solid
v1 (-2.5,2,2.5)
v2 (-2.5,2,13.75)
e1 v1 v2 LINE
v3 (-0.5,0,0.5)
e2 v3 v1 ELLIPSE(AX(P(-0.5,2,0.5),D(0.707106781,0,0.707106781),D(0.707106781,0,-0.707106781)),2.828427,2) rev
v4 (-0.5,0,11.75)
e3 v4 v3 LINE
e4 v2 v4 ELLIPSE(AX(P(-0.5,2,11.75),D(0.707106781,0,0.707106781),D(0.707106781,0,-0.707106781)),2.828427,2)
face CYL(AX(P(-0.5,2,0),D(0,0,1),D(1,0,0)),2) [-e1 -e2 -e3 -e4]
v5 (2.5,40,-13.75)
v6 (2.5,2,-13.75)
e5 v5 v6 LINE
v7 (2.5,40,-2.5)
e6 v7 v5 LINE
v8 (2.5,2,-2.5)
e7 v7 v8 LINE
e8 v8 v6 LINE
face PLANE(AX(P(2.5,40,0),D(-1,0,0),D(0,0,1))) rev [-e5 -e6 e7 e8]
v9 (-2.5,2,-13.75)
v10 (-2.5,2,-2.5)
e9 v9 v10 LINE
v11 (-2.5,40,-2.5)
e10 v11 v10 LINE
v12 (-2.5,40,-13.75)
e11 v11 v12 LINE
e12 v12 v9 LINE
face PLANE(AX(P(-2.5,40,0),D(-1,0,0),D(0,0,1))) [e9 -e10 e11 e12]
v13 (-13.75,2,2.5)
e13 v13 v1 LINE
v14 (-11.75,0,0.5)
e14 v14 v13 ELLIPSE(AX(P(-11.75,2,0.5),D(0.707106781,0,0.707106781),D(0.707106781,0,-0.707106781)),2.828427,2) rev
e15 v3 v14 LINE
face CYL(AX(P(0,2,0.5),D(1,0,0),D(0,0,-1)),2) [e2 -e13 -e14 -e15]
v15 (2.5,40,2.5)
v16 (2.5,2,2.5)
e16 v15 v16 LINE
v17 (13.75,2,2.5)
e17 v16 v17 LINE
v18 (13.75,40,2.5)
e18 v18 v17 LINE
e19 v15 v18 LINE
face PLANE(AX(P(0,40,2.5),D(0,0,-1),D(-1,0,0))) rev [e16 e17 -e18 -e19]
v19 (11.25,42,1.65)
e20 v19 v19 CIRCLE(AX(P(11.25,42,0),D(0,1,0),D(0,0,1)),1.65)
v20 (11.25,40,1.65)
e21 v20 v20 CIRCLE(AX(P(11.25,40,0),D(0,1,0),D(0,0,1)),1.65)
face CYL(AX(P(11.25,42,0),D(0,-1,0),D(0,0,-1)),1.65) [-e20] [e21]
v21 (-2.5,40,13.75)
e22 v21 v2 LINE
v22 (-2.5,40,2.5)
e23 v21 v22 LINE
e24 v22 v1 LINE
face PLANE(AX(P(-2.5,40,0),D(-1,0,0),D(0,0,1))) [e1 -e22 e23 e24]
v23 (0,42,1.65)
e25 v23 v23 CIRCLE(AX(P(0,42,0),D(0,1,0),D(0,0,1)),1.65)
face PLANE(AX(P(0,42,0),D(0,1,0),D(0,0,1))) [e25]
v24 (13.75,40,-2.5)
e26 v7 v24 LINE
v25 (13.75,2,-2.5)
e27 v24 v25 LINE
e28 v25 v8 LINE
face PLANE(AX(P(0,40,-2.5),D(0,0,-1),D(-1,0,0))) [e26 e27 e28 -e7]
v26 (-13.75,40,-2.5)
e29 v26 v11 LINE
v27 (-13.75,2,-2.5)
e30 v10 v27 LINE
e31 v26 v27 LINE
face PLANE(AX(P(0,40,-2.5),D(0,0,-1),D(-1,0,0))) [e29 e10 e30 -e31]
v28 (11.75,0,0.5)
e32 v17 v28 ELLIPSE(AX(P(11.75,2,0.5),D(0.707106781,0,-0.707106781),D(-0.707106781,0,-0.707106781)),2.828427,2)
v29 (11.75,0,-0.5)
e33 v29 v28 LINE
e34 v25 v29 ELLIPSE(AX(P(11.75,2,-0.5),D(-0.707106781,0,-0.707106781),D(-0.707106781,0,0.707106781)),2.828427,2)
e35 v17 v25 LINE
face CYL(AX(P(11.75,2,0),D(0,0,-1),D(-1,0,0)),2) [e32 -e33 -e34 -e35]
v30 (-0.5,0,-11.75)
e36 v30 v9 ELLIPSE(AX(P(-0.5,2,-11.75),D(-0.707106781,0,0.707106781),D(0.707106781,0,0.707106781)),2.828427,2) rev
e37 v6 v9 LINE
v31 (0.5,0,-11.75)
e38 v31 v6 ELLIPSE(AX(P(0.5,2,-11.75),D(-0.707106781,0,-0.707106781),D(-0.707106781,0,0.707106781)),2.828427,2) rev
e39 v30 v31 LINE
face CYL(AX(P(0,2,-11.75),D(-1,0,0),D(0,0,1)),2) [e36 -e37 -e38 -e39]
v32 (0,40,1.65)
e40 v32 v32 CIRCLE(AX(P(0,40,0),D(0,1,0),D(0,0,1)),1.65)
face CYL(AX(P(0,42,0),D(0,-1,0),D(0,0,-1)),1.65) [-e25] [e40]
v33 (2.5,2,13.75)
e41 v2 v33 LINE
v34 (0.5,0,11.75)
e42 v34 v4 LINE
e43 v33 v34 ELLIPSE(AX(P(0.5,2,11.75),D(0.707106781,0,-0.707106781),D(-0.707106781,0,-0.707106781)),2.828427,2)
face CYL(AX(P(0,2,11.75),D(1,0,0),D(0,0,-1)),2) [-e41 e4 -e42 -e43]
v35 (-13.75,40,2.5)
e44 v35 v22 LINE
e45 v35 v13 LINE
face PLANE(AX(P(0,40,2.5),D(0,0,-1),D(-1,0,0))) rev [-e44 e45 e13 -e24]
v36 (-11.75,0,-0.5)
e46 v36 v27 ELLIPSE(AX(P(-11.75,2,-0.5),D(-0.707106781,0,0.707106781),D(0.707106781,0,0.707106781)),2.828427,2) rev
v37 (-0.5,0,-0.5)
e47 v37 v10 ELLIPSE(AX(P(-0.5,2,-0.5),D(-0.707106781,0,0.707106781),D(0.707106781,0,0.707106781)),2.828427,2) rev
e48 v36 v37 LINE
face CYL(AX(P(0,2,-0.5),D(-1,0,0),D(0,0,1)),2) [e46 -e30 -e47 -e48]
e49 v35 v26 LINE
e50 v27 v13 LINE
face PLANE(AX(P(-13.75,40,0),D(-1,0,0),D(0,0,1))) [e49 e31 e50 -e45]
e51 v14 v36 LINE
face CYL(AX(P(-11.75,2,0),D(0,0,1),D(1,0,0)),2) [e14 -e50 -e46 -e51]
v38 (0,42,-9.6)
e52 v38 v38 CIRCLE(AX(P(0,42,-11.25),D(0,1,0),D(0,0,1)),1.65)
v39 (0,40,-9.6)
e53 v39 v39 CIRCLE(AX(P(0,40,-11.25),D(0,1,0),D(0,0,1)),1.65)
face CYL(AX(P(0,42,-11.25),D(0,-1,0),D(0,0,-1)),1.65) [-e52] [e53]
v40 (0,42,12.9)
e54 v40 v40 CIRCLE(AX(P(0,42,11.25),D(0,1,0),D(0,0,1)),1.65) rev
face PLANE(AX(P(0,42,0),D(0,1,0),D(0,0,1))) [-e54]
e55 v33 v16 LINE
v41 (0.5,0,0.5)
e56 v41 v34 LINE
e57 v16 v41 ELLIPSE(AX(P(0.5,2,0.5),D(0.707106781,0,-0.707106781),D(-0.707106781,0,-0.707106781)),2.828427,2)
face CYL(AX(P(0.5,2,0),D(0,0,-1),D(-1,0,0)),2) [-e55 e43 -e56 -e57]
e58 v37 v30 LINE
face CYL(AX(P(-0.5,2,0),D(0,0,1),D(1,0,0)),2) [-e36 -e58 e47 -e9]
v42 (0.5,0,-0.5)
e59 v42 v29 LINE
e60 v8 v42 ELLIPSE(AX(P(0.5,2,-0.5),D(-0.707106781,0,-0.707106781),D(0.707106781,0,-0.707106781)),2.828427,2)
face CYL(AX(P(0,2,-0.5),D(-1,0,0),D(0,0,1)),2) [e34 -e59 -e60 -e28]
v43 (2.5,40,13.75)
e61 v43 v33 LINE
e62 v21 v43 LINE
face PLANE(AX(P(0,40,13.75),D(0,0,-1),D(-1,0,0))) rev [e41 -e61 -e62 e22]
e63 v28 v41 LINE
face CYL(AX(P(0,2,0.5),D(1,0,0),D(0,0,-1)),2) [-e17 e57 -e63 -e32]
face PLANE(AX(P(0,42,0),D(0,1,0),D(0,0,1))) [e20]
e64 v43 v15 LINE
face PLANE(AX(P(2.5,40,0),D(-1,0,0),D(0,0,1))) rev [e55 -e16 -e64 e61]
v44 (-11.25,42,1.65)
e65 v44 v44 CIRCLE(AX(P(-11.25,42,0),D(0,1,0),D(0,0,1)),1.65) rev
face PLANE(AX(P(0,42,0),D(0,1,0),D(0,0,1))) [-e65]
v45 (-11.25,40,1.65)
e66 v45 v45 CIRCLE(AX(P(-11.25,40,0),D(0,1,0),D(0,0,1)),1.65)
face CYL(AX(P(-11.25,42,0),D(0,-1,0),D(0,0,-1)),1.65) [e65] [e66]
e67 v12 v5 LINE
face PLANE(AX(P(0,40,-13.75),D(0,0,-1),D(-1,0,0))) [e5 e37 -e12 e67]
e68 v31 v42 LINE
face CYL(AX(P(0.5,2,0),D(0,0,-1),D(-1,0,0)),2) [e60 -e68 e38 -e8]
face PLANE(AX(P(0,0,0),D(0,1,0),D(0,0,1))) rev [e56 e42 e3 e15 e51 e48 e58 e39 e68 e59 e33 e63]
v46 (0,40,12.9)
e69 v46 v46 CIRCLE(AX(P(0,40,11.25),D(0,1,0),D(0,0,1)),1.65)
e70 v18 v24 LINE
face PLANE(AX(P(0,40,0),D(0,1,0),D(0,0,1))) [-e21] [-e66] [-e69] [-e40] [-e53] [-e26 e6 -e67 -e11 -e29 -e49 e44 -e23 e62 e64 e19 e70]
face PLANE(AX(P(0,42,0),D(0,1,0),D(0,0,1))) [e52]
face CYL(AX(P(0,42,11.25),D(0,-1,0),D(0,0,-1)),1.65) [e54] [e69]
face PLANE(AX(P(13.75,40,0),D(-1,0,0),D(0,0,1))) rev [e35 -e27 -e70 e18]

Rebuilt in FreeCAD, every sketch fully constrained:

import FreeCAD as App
import Part
import Sketcher

V = App.Vector


def edges_at(feature, points):
    """Names of the edges that pass closest to the given points."""
    edges = feature.Shape.Edges
    near = lambda p: min(range(len(edges)), key=lambda i: edges[i].distToShape(Part.Vertex(*p))[0])
    return sorted({f"Edge{near(p) + 1}" for p in points})


def add_polygon(sketch, points):
    """Adds a closed chain of lines whose ends are joined by coincident constraints."""
    first, n = sketch.GeometryCount, len(points)
    for a, b in zip(points, points[1:] + points[:1]):
        sketch.addGeometry(Part.LineSegment(App.Vector(*a, 0), App.Vector(*b, 0)), False)
    for i in range(n):
        sketch.addConstraint(Sketcher.Constraint("Coincident", first + i, 2, first + (i + 1) % n, 1))

doc = App.newDocument("Part")
params = doc.addObject("Spreadsheet::Sheet", "Params")
for row, (alias, value) in enumerate([
    ("sketch1_width", "5 mm"),
    ("sketch1_width2", "11.25 mm"),
    ("pad1_length", "40 mm"),
    ("sketch2_diameter", "3.3 mm"),
    ("pad2_length", "2 mm"),
    ("fillet_radius", "2 mm"),
], start=1):
    params.set(f"A{row}", alias)
    params.set(f"B{row}", "=" + value)
    params.setAlias(f"B{row}", alias)

body = doc.addObject("PartDesign::Body", "Body")

# Sketch on XZ plane
sketch1 = body.newObject("Sketcher::SketchObject", "Sketch")
sketch1.AttachmentSupport = (doc.getObject("XZ_Plane"), [""])
sketch1.MapMode = "FlatFace"
add_polygon(sketch1, [(-2, 14), (2, 14), (2, 2), (14, 2), (14, -2), (2, -2), (2, -14), (-2, -14), (-2, -2), (-14, -2), (-14, 2), (-2, 2)])  # lines 0-11
sketch1.addConstraint(Sketcher.Constraint("Horizontal", 0))
sketch1.addConstraint(Sketcher.Constraint("Vertical", 1))
sketch1.addConstraint(Sketcher.Constraint("Horizontal", 2))
sketch1.addConstraint(Sketcher.Constraint("Vertical", 3))
sketch1.addConstraint(Sketcher.Constraint("Horizontal", 4))
sketch1.addConstraint(Sketcher.Constraint("Vertical", 5))
sketch1.addConstraint(Sketcher.Constraint("Horizontal", 6))
sketch1.addConstraint(Sketcher.Constraint("Vertical", 7))
sketch1.addConstraint(Sketcher.Constraint("Horizontal", 8))
sketch1.addConstraint(Sketcher.Constraint("Vertical", 9))
sketch1.addConstraint(Sketcher.Constraint("Horizontal", 10))
sketch1.addConstraint(Sketcher.Constraint("Vertical", 11))
sketch1.addConstraint(Sketcher.Constraint("Symmetric", 0, 2, 6, 2, -1, 1))
sketch1.addConstraint(Sketcher.Constraint("Symmetric", 2, 2, 8, 2, -1, 1))
sketch1.addConstraint(Sketcher.Constraint("Symmetric", 4, 2, 10, 2, -1, 1))
sketch1.addConstraint(Sketcher.Constraint("Symmetric", 4, 2, 7, 2, -2))
sketch1.addConstraint(Sketcher.Constraint("Equal", 10, 1))
sketch1.addConstraint(Sketcher.Constraint("Equal", 6, 3))
sketch1.addConstraint(Sketcher.Constraint("DistanceX", 0, 1, 0, 2, 5.0))
sketch1.addConstraint(Sketcher.Constraint("DistanceX", 2, 1, 2, 2, 11.25))
sketch1.setExpression("Constraints[30]", "Params.sketch1_width")
sketch1.setExpression("Constraints[31]", "Params.sketch1_width2")
pad1 = body.newObject("PartDesign::Pad", "Pad")
pad1.Profile = sketch1
pad1.setExpression("Length", "Params.pad1_length")
pad1.Reversed = True

# Sketch on XZ plane
sketch2 = body.newObject("Sketcher::SketchObject", "Sketch001")
sketch2.AttachmentSupport = (doc.getObject("XZ_Plane"), [""])
sketch2.MapMode = "FlatFace"
sketch2.AttachmentOffset = App.Placement(V(0, 0, -40), App.Rotation())
sketch2.addGeometry(Part.Circle(V(0, 0, 0), V(0, 0, 1), 1.6), False)
sketch2.addGeometry(Part.Circle(V(11.2, 0, 0), V(0, 0, 1), 1.6), False)
sketch2.addGeometry(Part.Circle(V(-11.2, 0, 0), V(0, 0, 1), 1.6), False)
sketch2.addGeometry(Part.Circle(V(0, -11.2, 0), V(0, 0, 1), 1.6), False)
sketch2.addGeometry(Part.Circle(V(0, 11.2, 0), V(0, 0, 1), 1.6), False)
sketch2.addConstraint(Sketcher.Constraint("Coincident", 0, 3, -1, 1))
sketch2.addConstraint(Sketcher.Constraint("Equal", 0, 1))
sketch2.addConstraint(Sketcher.Constraint("Equal", 1, 2))
sketch2.addConstraint(Sketcher.Constraint("Equal", 2, 3))
sketch2.addConstraint(Sketcher.Constraint("Equal", 3, 4))
sketch2.addConstraint(Sketcher.Constraint("Symmetric", 1, 3, 2, 3, -1, 1))
sketch2.addConstraint(Sketcher.Constraint("Symmetric", 3, 3, 4, 3, -1, 1))
sketch2.addConstraint(Sketcher.Constraint("PointOnObject", 1, 3, -1))
sketch2.addConstraint(Sketcher.Constraint("PointOnObject", 3, 3, -2))
sketch2.addConstraint(Sketcher.Constraint("Diameter", 0, 3.3))
sketch2.addConstraint(Sketcher.Constraint("DistanceX", 2, 3, 1, 3, 22.5))
sketch2.addConstraint(Sketcher.Constraint("DistanceY", 3, 3, 4, 3, 22.5))
sketch2.setExpression("Constraints[9]", "Params.sketch2_diameter")
pad2 = body.newObject("PartDesign::Pad", "Pad001")
pad2.Profile = sketch2
pad2.setExpression("Length", "Params.pad2_length")
pad2.Reversed = True
doc.recompute()

fillet = body.newObject("PartDesign::Fillet", "Fillet")
fillet.Base = (pad2, edges_at(pad2, [
    (13.75, 0, 0),
    (8.125, 0, 2.5),
    (2.5, 0, 8.125),
    (0, 0, 13.75),
    (-2.5, 0, 8.125),
    (-8.125, 0, 2.5),
    (-13.75, 0, 0),
    (-8.125, 0, -2.5),
    (-2.5, 0, -8.125),
    (0, 0, -13.75),
    (2.5, 0, -8.125),
    (8.125, 0, -2.5),
]))
fillet.setExpression("Radius", "Params.fillet_radius")

doc.recompute()
